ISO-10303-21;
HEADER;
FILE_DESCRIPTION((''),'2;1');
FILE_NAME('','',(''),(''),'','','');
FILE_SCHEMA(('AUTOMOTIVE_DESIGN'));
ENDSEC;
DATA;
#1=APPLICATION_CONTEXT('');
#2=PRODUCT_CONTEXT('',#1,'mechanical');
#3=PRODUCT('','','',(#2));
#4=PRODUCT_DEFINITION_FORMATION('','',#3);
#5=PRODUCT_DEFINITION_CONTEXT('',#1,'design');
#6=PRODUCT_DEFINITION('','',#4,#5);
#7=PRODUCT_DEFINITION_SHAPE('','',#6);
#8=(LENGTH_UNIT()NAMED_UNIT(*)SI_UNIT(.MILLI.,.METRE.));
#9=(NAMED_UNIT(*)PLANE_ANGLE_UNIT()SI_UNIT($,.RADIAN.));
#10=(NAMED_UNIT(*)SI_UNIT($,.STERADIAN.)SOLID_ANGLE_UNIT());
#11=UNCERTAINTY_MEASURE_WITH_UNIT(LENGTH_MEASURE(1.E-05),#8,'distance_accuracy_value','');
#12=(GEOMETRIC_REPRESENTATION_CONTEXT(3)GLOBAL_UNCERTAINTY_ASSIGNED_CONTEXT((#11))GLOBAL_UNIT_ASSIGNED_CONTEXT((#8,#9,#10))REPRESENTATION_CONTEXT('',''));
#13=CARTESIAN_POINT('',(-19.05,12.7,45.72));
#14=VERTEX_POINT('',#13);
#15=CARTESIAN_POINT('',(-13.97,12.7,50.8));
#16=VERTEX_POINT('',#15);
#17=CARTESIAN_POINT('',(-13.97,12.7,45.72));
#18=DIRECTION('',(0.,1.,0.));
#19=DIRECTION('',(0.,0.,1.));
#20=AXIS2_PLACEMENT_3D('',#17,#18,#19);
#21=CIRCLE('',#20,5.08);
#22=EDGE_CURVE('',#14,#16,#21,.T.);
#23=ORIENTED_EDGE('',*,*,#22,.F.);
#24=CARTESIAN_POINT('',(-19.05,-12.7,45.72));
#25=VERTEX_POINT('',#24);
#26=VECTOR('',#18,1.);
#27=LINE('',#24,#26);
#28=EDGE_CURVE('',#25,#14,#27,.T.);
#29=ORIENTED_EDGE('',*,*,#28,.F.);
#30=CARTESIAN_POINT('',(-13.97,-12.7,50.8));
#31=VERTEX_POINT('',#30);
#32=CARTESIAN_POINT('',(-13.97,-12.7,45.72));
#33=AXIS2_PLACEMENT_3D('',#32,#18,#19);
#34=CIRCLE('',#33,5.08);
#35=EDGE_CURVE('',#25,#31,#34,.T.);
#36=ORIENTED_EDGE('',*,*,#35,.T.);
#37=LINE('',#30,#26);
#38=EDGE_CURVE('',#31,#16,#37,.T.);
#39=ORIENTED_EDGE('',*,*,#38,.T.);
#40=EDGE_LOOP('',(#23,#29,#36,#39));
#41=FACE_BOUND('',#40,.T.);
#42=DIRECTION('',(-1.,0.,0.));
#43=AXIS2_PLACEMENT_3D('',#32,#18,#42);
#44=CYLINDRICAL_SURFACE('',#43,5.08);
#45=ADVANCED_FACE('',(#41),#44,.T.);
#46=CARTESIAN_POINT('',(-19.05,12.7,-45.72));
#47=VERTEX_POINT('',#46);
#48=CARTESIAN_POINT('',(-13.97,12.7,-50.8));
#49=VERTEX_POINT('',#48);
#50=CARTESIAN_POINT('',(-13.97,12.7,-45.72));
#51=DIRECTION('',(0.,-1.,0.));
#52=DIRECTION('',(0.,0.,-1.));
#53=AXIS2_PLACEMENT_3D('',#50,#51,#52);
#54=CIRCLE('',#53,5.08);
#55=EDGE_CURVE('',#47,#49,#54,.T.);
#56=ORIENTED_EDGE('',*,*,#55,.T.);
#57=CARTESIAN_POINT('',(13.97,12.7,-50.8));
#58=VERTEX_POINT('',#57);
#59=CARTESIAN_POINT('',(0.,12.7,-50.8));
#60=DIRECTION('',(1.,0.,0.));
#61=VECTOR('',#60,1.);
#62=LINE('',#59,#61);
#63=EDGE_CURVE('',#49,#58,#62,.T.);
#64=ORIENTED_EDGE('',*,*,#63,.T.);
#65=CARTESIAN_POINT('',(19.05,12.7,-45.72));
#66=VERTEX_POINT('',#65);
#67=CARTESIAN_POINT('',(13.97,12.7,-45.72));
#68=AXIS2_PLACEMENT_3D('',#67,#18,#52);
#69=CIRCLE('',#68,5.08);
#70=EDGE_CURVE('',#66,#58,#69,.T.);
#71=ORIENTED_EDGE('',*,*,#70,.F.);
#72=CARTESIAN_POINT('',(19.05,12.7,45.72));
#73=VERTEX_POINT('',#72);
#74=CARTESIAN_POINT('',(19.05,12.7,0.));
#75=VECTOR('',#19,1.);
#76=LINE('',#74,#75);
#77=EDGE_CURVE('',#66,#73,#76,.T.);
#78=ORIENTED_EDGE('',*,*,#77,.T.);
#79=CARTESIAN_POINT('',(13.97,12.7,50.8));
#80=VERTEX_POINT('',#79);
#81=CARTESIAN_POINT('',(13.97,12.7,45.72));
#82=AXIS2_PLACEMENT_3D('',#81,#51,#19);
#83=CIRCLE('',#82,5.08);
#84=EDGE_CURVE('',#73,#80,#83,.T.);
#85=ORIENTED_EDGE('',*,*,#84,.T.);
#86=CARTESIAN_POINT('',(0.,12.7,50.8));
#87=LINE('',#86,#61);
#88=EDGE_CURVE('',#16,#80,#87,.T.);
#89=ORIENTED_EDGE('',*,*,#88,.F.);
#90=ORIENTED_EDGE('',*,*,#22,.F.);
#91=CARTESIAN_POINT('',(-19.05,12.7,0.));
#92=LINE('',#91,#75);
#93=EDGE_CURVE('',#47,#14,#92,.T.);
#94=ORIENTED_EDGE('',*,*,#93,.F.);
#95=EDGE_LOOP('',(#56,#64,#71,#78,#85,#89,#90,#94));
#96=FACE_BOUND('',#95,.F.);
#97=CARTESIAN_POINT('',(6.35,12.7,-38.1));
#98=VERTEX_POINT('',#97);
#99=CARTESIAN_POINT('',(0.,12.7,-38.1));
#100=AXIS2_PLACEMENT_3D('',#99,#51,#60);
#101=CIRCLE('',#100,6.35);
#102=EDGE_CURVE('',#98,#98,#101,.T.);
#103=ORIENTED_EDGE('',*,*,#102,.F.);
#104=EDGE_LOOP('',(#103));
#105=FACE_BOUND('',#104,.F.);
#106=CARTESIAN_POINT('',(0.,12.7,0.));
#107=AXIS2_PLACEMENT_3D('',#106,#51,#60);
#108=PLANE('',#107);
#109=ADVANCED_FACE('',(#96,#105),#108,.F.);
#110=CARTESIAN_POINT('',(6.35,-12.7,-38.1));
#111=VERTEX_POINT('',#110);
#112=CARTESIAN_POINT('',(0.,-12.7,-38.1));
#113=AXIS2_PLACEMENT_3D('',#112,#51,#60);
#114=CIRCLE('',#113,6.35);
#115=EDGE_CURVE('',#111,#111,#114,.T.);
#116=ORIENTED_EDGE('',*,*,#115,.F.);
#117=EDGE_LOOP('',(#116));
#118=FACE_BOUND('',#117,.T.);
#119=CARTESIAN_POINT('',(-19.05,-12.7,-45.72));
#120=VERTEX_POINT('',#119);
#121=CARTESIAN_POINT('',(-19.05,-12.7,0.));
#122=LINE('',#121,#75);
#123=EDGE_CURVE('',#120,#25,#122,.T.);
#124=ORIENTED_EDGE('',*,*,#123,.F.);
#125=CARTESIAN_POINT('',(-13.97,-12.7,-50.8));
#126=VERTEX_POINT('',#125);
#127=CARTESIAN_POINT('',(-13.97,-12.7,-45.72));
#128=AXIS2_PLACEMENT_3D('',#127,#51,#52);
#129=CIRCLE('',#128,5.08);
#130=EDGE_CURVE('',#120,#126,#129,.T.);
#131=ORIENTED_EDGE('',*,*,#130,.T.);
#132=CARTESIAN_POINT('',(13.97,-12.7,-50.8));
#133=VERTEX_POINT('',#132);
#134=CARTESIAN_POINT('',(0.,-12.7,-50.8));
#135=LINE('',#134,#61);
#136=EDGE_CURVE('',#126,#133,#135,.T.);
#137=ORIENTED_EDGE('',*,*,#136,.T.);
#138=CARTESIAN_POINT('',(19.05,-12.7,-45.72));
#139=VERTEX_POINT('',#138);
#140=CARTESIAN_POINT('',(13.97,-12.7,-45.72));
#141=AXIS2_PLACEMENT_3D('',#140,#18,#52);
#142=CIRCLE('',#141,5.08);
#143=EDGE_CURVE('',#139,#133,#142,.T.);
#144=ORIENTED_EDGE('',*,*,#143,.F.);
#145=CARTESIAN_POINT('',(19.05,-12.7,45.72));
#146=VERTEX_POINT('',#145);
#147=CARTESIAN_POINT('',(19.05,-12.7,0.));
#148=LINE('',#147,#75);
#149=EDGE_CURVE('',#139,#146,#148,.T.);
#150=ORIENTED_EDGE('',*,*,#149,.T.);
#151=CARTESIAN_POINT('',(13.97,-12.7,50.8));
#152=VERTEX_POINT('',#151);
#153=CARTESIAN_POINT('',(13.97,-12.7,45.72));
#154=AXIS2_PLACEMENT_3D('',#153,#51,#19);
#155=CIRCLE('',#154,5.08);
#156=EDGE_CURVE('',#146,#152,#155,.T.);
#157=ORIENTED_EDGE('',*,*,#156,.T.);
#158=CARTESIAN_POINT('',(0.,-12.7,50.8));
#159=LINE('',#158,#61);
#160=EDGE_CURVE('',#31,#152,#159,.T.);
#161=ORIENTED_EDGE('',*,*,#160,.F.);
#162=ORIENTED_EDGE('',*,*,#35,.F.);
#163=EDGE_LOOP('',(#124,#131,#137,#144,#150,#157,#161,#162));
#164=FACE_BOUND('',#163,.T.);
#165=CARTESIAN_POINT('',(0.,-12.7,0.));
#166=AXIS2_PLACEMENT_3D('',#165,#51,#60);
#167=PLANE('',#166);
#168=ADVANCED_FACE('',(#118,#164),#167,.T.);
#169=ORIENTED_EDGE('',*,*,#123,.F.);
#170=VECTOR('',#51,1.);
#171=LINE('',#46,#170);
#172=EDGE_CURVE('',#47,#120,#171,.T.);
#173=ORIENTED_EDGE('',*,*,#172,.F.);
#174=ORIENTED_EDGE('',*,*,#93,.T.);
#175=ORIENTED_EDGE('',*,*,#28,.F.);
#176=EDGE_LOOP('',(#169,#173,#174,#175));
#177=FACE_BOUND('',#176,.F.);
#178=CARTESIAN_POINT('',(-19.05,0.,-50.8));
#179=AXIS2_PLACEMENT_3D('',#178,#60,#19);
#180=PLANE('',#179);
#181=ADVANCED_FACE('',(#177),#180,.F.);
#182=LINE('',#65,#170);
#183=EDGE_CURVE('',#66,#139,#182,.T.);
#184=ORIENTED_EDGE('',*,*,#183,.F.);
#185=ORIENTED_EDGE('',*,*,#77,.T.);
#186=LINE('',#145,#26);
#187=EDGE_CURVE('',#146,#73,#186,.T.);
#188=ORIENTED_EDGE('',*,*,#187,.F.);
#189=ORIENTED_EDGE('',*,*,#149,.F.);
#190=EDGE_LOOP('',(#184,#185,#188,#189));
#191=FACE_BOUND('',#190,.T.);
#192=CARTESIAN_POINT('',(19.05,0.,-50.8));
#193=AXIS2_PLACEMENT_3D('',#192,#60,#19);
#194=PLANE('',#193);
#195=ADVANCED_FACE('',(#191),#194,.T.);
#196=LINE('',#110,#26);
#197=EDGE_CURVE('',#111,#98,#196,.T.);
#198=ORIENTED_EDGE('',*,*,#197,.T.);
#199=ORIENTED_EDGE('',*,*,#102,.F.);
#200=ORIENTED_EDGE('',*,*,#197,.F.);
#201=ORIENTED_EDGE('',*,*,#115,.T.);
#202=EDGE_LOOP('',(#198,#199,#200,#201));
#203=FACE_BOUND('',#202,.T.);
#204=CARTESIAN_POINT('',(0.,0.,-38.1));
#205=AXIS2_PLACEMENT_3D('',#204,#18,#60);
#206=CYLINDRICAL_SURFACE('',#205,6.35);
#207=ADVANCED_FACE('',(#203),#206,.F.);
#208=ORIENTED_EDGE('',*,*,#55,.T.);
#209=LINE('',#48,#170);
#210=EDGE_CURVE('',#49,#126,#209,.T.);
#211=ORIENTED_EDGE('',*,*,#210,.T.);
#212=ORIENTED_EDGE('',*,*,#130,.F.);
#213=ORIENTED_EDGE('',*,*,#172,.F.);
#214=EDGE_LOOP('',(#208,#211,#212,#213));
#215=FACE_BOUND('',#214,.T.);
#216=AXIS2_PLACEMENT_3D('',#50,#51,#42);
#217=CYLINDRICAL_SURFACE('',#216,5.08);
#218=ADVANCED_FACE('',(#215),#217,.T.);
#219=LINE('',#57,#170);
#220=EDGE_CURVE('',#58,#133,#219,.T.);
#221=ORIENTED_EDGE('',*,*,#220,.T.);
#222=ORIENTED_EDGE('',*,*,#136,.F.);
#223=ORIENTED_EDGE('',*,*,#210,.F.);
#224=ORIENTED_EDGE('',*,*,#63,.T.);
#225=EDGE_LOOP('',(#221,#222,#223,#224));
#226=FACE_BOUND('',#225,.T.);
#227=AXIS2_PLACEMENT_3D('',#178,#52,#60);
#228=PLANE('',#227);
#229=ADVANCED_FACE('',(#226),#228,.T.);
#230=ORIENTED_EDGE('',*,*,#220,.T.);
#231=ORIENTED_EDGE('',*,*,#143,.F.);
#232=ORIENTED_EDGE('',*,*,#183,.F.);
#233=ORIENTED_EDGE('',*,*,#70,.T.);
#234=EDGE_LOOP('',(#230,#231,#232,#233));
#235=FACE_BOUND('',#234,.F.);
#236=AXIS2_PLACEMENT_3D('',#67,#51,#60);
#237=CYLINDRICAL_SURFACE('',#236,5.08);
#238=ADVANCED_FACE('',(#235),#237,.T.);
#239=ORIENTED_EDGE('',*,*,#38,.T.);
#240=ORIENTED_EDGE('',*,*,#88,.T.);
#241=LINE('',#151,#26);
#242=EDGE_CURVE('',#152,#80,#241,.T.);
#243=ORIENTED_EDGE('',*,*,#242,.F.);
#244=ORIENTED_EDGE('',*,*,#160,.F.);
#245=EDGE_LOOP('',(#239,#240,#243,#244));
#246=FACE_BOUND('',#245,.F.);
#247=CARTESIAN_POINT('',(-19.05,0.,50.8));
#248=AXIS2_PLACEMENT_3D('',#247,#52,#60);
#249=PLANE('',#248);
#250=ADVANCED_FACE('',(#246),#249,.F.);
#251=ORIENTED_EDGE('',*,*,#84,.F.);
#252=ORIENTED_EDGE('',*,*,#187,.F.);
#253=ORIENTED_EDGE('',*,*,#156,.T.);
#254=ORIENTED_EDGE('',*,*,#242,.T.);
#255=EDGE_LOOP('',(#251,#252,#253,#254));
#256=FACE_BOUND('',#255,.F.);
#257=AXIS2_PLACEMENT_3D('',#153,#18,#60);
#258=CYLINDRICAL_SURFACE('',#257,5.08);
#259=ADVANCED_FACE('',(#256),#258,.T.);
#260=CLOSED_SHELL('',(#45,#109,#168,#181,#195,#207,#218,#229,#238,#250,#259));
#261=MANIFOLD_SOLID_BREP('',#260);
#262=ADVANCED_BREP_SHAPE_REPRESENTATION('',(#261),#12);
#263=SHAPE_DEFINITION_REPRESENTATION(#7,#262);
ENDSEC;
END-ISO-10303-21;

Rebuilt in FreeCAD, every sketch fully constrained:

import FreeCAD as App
import Part
import Sketcher
Q = App.Units.Quantity


def edges_at(feature, points):
    """Names of the edges that pass closest to the given points."""
    edges = feature.Shape.Edges
    near = lambda p: min(range(len(edges)), key=lambda i: edges[i].distToShape(Part.Vertex(*p))[0])
    return sorted({f"Edge{near(p) + 1}" for p in points})

doc = App.newDocument("Part")
body = doc.addObject("PartDesign::Body", "Body")

# Sketch on XZ plane
sketch1 = doc.addObject("Sketcher::SketchObject", "Sketch")
body.addObject(sketch1)
sketch1.AttachmentSupport = (doc.XZ_Plane, [""])
sketch1.MapMode = "FlatFace"
sketch1.addGeometry(Part.LineSegment(App.Vector(-19.05, 50.8, 0), App.Vector(-19.05, -50.8, 0)), False)
sketch1.addGeometry(Part.LineSegment(App.Vector(-19.05, -50.8, 0), App.Vector(19.05, -50.8, 0)), False)
sketch1.addGeometry(Part.LineSegment(App.Vector(19.05, -50.8, 0), App.Vector(19.05, 50.8, 0)), False)
sketch1.addGeometry(Part.LineSegment(App.Vector(19.05, 50.8, 0), App.Vector(-19.05, 50.8, 0)), False)
sketch1.addGeometry(Part.Circle(App.Vector(0, -38.1, 0), App.Vector(0, 0, 1), 6.35), False)
sketch1.addConstraint(Sketcher.Constraint("Coincident", 0, 2, 1, 1))
sketch1.addConstraint(Sketcher.Constraint("Coincident", 1, 2, 2, 1))
sketch1.addConstraint(Sketcher.Constraint("Coincident", 2, 2, 3, 1))
sketch1.addConstraint(Sketcher.Constraint("Coincident", 3, 2, 0, 1))
sketch1.addConstraint(Sketcher.Constraint("Vertical", 0))
sketch1.addConstraint(Sketcher.Constraint("Horizontal", 1))
sketch1.addConstraint(Sketcher.Constraint("Vertical", 2))
sketch1.addConstraint(Sketcher.Constraint("Horizontal", 3))
sketch1.addConstraint(Sketcher.Constraint("Symmetric", 0, 2, 2, 2, -1, 1))
sketch1.addConstraint(Sketcher.Constraint("PointOnObject", 4, 3, -2))
sketch1.addConstraint(Sketcher.Constraint("Diameter", 4, Q("0.5 in")))
sketch1.addConstraint(Sketcher.Constraint("DistanceY", 0, 2, 0, 1, Q("4 in")))
sketch1.addConstraint(Sketcher.Constraint("DistanceX", 1, 1, 1, 2, Q("1.5 in")))
sketch1.addConstraint(Sketcher.Constraint("DistanceY", 4, 3, -1, 1, Q("1.5 in")))
pad1 = doc.addObject("PartDesign::Pad", "Pad")
body.addObject(pad1)
pad1.Profile = sketch1
pad1.Length = Q("1 in")
pad1.Midplane = True
doc.recompute()

fillet = doc.addObject("PartDesign::Fillet", "Fillet")
body.addObject(fillet)
fillet.Base = (pad1, edges_at(pad1, [
    (-19.05, 0, 50.8),
    (19.05, 0, 50.8),
    (19.05, 0, -50.8),
    (-19.05, 0, -50.8),
]))
fillet.Radius = Q("0.2 in")

doc.recompute()
